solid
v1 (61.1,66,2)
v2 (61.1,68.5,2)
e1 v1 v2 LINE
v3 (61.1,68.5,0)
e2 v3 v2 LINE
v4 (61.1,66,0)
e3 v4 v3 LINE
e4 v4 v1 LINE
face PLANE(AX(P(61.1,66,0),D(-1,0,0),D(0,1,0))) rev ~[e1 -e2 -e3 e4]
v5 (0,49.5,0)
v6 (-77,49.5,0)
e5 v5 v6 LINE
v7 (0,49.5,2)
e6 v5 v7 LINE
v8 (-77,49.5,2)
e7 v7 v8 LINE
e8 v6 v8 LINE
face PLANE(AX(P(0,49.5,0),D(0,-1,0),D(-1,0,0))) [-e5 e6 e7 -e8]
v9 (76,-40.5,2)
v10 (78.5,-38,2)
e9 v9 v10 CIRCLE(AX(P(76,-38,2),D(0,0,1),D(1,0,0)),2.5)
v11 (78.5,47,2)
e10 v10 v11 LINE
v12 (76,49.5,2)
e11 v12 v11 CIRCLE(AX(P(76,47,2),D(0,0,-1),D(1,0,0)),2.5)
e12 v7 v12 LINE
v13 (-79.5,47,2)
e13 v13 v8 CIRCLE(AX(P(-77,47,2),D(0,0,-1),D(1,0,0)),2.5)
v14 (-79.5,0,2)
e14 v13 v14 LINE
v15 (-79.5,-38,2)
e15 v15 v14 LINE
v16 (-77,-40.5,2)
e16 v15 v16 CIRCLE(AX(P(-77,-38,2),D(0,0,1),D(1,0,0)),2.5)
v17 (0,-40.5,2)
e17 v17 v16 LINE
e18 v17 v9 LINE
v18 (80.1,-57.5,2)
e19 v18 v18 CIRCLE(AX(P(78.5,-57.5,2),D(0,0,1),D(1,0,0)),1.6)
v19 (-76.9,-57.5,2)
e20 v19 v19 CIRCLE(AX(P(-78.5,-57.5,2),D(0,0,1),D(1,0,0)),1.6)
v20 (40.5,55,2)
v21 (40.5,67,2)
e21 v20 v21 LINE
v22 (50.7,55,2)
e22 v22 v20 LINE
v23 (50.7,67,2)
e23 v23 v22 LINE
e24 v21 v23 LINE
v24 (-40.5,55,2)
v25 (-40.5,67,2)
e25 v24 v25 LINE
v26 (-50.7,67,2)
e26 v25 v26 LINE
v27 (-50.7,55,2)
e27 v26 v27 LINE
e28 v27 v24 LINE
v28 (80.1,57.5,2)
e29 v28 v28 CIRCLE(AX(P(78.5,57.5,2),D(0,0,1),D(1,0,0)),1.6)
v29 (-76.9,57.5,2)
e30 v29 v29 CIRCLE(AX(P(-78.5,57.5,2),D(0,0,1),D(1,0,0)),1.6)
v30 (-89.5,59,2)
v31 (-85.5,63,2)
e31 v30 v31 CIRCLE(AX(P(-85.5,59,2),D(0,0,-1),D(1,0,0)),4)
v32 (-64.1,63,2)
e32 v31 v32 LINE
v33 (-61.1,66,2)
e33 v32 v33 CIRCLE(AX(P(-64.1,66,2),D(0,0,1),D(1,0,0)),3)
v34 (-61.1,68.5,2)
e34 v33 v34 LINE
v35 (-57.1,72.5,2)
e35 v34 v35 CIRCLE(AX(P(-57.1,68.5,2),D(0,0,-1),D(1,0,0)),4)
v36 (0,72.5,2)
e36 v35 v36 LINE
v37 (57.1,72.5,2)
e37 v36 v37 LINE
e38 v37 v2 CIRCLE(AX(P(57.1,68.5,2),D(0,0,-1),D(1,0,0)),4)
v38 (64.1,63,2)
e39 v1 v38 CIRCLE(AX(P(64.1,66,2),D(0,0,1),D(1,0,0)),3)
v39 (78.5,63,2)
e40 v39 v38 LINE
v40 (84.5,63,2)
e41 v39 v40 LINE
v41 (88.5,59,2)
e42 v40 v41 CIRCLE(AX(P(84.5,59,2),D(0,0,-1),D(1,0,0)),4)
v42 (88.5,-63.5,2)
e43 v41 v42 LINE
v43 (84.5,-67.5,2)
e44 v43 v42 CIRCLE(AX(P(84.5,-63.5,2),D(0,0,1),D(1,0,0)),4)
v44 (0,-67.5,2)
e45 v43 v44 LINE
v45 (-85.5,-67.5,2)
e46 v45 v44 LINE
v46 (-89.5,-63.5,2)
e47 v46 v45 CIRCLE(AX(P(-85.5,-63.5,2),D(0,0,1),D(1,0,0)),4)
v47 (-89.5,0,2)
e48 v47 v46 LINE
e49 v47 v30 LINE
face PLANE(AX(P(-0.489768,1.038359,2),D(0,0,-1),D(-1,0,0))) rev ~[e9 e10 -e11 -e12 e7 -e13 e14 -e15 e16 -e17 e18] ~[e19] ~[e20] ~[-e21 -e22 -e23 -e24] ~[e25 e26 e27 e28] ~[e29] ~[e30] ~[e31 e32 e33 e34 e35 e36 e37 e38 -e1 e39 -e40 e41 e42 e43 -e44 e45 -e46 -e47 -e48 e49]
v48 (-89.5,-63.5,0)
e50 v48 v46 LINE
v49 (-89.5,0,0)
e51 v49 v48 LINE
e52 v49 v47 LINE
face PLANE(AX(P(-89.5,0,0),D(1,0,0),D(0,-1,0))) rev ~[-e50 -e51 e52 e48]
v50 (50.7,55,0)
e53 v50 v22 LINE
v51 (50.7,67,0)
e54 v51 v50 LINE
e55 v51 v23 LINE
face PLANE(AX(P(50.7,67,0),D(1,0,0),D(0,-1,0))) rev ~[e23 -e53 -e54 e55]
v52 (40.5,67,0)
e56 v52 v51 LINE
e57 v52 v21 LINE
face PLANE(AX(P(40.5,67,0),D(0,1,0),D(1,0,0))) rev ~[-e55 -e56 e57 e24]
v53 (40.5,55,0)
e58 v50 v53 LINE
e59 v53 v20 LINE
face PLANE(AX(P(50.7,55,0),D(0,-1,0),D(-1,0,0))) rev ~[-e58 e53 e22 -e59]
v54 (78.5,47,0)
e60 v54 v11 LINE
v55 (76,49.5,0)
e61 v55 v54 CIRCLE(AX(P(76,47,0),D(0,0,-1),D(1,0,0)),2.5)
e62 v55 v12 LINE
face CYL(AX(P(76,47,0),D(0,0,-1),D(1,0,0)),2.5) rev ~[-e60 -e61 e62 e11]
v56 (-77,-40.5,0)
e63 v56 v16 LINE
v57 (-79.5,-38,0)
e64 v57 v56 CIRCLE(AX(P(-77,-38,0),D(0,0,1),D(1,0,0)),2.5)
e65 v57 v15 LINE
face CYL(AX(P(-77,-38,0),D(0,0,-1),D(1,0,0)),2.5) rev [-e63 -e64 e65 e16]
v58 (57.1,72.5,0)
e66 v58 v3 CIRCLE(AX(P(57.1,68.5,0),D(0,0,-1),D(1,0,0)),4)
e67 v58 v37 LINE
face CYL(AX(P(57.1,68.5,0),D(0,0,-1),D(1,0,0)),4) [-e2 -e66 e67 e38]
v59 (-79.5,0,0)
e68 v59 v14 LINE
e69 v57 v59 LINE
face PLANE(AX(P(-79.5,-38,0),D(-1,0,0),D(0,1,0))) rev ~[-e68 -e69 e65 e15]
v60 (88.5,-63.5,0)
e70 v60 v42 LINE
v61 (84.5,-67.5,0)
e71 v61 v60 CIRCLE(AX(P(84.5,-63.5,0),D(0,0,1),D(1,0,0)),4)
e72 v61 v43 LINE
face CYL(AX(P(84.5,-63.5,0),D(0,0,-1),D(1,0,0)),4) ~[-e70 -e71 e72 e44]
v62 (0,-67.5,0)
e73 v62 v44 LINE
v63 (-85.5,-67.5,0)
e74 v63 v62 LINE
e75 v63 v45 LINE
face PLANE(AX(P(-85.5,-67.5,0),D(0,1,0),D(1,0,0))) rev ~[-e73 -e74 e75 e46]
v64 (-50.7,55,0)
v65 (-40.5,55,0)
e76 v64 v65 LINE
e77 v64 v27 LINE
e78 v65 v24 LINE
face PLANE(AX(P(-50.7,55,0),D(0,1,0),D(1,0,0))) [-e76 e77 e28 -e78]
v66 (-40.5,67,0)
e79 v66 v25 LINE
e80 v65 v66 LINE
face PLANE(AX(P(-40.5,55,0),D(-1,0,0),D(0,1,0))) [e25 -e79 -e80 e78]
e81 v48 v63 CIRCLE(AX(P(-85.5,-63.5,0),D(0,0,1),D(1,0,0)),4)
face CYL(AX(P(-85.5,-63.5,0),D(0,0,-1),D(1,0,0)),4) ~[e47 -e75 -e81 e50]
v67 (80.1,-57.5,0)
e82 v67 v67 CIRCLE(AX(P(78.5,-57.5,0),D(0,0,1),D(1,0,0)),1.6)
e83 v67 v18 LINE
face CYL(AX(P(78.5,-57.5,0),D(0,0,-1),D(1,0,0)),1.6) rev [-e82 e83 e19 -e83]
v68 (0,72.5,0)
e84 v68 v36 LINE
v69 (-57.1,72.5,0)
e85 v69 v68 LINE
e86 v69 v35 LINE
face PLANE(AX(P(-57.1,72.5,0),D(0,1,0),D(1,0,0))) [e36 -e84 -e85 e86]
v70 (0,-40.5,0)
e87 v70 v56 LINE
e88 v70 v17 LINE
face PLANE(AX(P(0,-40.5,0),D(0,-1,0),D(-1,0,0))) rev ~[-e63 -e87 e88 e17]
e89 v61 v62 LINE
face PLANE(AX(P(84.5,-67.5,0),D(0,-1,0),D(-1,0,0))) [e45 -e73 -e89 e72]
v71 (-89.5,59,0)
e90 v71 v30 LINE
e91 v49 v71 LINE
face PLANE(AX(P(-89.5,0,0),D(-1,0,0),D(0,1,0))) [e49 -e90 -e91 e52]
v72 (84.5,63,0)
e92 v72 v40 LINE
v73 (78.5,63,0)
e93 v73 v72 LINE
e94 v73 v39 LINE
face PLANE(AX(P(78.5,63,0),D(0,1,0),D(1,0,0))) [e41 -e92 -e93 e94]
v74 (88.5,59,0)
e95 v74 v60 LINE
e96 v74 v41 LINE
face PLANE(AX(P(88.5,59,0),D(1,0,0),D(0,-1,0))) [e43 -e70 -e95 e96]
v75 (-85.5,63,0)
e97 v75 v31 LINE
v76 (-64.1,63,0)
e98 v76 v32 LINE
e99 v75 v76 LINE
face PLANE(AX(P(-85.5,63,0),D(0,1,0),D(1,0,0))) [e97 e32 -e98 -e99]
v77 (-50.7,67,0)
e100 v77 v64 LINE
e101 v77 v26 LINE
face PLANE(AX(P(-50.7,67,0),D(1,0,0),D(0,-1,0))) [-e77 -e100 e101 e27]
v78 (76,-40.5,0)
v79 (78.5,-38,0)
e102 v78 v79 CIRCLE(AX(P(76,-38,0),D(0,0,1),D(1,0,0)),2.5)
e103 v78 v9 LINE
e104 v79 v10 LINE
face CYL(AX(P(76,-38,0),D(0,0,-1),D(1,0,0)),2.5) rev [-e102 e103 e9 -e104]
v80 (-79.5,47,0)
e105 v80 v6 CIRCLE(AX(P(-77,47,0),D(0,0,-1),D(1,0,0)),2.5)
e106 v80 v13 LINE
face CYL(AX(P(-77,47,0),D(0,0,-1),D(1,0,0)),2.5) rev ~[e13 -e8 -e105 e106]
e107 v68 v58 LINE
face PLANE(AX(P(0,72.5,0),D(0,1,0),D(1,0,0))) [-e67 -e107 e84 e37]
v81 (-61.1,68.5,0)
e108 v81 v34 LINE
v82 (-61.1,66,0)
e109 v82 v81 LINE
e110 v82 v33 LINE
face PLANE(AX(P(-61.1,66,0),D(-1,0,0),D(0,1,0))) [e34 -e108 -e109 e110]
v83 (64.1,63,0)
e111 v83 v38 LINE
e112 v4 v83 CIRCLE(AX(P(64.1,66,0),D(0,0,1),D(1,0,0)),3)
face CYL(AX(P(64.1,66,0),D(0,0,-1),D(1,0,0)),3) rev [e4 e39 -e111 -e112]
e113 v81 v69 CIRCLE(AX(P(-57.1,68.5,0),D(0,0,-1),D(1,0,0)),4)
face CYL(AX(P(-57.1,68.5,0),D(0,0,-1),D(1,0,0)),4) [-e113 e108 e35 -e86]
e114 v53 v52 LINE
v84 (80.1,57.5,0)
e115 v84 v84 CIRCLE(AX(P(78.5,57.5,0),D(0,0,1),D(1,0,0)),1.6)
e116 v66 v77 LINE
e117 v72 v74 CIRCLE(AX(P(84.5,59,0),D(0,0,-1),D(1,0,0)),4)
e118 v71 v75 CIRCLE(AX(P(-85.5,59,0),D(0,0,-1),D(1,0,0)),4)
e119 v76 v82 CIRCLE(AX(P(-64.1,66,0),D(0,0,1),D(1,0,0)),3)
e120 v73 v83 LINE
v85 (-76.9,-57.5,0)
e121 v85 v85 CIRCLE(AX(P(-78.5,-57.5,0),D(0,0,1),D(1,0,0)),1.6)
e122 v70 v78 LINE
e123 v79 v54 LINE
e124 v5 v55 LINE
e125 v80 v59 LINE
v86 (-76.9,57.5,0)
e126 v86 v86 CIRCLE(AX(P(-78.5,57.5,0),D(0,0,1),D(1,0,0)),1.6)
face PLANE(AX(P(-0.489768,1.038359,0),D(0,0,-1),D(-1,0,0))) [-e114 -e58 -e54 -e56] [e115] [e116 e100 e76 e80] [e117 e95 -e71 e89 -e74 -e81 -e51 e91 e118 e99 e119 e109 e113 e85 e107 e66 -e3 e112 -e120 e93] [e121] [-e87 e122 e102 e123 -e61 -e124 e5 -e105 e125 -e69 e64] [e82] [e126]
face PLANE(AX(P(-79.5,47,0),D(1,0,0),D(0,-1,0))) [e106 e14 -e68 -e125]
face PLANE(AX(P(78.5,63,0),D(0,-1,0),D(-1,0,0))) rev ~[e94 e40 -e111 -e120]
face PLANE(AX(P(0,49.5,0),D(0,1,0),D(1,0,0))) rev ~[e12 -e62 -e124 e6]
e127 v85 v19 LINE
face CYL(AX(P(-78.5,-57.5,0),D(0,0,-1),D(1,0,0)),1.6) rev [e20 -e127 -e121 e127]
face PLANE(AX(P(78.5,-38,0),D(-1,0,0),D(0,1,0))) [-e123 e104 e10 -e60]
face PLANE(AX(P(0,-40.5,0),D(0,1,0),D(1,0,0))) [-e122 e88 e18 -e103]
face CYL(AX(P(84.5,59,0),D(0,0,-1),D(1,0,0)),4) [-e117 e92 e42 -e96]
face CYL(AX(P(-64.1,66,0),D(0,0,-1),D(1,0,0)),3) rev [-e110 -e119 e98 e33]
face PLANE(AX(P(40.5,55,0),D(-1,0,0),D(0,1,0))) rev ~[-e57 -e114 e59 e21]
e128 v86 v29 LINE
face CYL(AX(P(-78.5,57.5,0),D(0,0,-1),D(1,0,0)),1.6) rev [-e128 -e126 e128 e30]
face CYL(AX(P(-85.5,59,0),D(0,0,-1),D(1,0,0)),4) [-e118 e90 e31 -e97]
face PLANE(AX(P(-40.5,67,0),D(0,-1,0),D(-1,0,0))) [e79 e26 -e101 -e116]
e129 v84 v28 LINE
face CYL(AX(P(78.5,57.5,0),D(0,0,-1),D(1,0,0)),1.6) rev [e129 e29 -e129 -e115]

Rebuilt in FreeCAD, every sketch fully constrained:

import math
import FreeCAD as App
import Part
import Sketcher


def add_polygon(sketch, points):
    """Adds a closed chain of lines whose ends are joined by coincident constraints."""
    first, n = sketch.GeometryCount, len(points)
    for a, b in zip(points, points[1:] + points[:1]):
        sketch.addGeometry(Part.LineSegment(App.Vector(*a, 0), App.Vector(*b, 0)), False)
    for i in range(n):
        sketch.addConstraint(Sketcher.Constraint("Coincident", first + i, 2, first + (i + 1) % n, 1))

doc = App.newDocument("Part")
body = doc.addObject("PartDesign::Body", "Body")

# Sketch on XY plane
sketch1 = body.newObject("Sketcher::SketchObject", "Sketch")
sketch1.AttachmentSupport = (doc.getObject("XY_Plane"), [""])
sketch1.MapMode = "FlatFace"
sketch1.addGeometry(Part.LineSegment(App.Vector(88.5, -63.5, 0), App.Vector(88.5, 59, 0)), False)  # 0
sketch1.addGeometry(Part.ArcOfCircle(Part.Circle(App.Vector(84.5, 59, 0), App.Vector(0, 0, 1), 4), math.radians(0), math.radians(90)), False)  # 1
sketch1.addGeometry(Part.LineSegment(App.Vector(84.5, 63, 0), App.Vector(64.1, 63, 0)), False)  # 2
sketch1.addGeometry(Part.ArcOfCircle(Part.Circle(App.Vector(64.1, 66, 0), App.Vector(0, 0, 1), 3), math.radians(180), math.radians(270)), False)  # 3
sketch1.addGeometry(Part.LineSegment(App.Vector(61.1, 66, 0), App.Vector(61.1, 68.5, 0)), False)  # 4
sketch1.addGeometry(Part.ArcOfCircle(Part.Circle(App.Vector(57.1, 68.5, 0), App.Vector(0, 0, 1), 4), math.radians(0), math.radians(90)), False)  # 5
sketch1.addGeometry(Part.LineSegment(App.Vector(57.1, 72.5, 0), App.Vector(-57.1, 72.5, 0)), False)  # 6
sketch1.addGeometry(Part.ArcOfCircle(Part.Circle(App.Vector(-57.1, 68.5, 0), App.Vector(0, 0, 1), 4), math.radians(90), math.radians(180)), False)  # 7
sketch1.addGeometry(Part.LineSegment(App.Vector(-61.1, 68.5, 0), App.Vector(-61.1, 66, 0)), False)  # 8
sketch1.addGeometry(Part.ArcOfCircle(Part.Circle(App.Vector(-64.1, 66, 0), App.Vector(0, 0, 1), 3), math.radians(-90), math.radians(0)), False)  # 9
sketch1.addGeometry(Part.LineSegment(App.Vector(-64.1, 63, 0), App.Vector(-85.5, 63, 0)), False)  # 10
sketch1.addGeometry(Part.ArcOfCircle(Part.Circle(App.Vector(-85.5, 59, 0), App.Vector(0, 0, 1), 4), math.radians(90), math.radians(180)), False)  # 11
sketch1.addGeometry(Part.LineSegment(App.Vector(-89.5, 59, 0), App.Vector(-89.5, -63.5, 0)), False)  # 12
sketch1.addGeometry(Part.ArcOfCircle(Part.Circle(App.Vector(-85.5, -63.5, 0), App.Vector(0, 0, 1), 4), math.radians(180), math.radians(270)), False)  # 13
sketch1.addGeometry(Part.LineSegment(App.Vector(-85.5, -67.5, 0), App.Vector(84.5, -67.5, 0)), False)  # 14
sketch1.addGeometry(Part.ArcOfCircle(Part.Circle(App.Vector(84.5, -63.5, 0), App.Vector(0, 0, 1), 4), math.radians(-90), math.radians(0)), False)  # 15
sketch1.addGeometry(Part.Circle(App.Vector(-78.5, -57.5, 0), App.Vector(0, 0, 1), 1.6), False)  # 16
sketch1.addGeometry(Part.Circle(App.Vector(78.5, -57.5, 0), App.Vector(0, 0, 1), 1.6), False)  # 17
sketch1.addGeometry(Part.Circle(App.Vector(-78.5, 57.5, 0), App.Vector(0, 0, 1), 1.6), False)  # 18
add_polygon(sketch1, [(-50.7, 55), (-50.7, 67), (-40.5, 67), (-40.5, 55)])  # lines 19-22
sketch1.addGeometry(Part.LineSegment(App.Vector(-77, 49.5, 0), App.Vector(76, 49.5, 0)), False)  # 23
sketch1.addGeometry(Part.ArcOfCircle(Part.Circle(App.Vector(76, 47, 0), App.Vector(0, 0, 1), 2.5), math.radians(0), math.radians(90)), False)  # 24
sketch1.addGeometry(Part.LineSegment(App.Vector(78.5, 47, 0), App.Vector(78.5, -38, 0)), False)  # 25
sketch1.addGeometry(Part.ArcOfCircle(Part.Circle(App.Vector(76, -38, 0), App.Vector(0, 0, 1), 2.5), math.radians(-90), math.radians(0)), False)  # 26
sketch1.addGeometry(Part.LineSegment(App.Vector(76, -40.5, 0), App.Vector(-77, -40.5, 0)), False)  # 27
sketch1.addGeometry(Part.ArcOfCircle(Part.Circle(App.Vector(-77, -38, 0), App.Vector(0, 0, 1), 2.5), math.radians(180), math.radians(270)), False)  # 28
sketch1.addGeometry(Part.LineSegment(App.Vector(-79.5, -38, 0), App.Vector(-79.5, 47, 0)), False)  # 29
sketch1.addGeometry(Part.ArcOfCircle(Part.Circle(App.Vector(-77, 47, 0), App.Vector(0, 0, 1), 2.5), math.radians(90), math.radians(180)), False)  # 30
add_polygon(sketch1, [(50.7, 67), (50.7, 55), (40.5, 55), (40.5, 67)])  # lines 31-34
sketch1.addGeometry(Part.Circle(App.Vector(78.5, 57.5, 0), App.Vector(0, 0, 1), 1.6), False)  # 35
sketch1.addConstraint([
    Sketcher.Constraint("Tangent", 0, 2, 1, 1),
    Sketcher.Constraint("Tangent", 1, 2, 2, 1),
    Sketcher.Constraint("Tangent", 2, 2, 3, 2),
    Sketcher.Constraint("Tangent", 3, 1, 4, 1),
    Sketcher.Constraint("Tangent", 4, 2, 5, 1),
    Sketcher.Constraint("Tangent", 5, 2, 6, 1),
    Sketcher.Constraint("Tangent", 6, 2, 7, 1),
    Sketcher.Constraint("Tangent", 7, 2, 8, 1),
    Sketcher.Constraint("Tangent", 8, 2, 9, 2),
    Sketcher.Constraint("Tangent", 9, 1, 10, 1),
    Sketcher.Constraint("Tangent", 10, 2, 11, 1),
    Sketcher.Constraint("Tangent", 11, 2, 12, 1),
    Sketcher.Constraint("Tangent", 12, 2, 13, 1),
    Sketcher.Constraint("Tangent", 13, 2, 14, 1),
    Sketcher.Constraint("Tangent", 14, 2, 15, 1),
    Sketcher.Constraint("Tangent", 15, 2, 0, 1),
    Sketcher.Constraint("Tangent", 23, 2, 24, 2),
    Sketcher.Constraint("Tangent", 24, 1, 25, 1),
    Sketcher.Constraint("Tangent", 25, 2, 26, 2),
    Sketcher.Constraint("Tangent", 26, 1, 27, 1),
    Sketcher.Constraint("Tangent", 27, 2, 28, 2),
    Sketcher.Constraint("Tangent", 28, 1, 29, 1),
    Sketcher.Constraint("Tangent", 29, 2, 30, 2),
    Sketcher.Constraint("Tangent", 30, 1, 23, 1),
    Sketcher.Constraint("Vertical", 0),
    Sketcher.Constraint("Horizontal", 2),
    Sketcher.Constraint("Vertical", 4),
    Sketcher.Constraint("Horizontal", 6),
    Sketcher.Constraint("Vertical", 8),
    Sketcher.Constraint("Horizontal", 10),
    Sketcher.Constraint("Vertical", 12),
    Sketcher.Constraint("Horizontal", 14),
    Sketcher.Constraint("Vertical", 19),
    Sketcher.Constraint("Horizontal", 20),
    Sketcher.Constraint("Vertical", 21),
    Sketcher.Constraint("Horizontal", 22),
    Sketcher.Constraint("Horizontal", 23),
    Sketcher.Constraint("Vertical", 25),
    Sketcher.Constraint("Horizontal", 27),
    Sketcher.Constraint("Vertical", 29),
    Sketcher.Constraint("Vertical", 31),
    Sketcher.Constraint("Horizontal", 32),
    Sketcher.Constraint("Vertical", 33),
    Sketcher.Constraint("Horizontal", 34),
    Sketcher.Constraint("Equal", 1, 5),
    Sketcher.Constraint("Equal", 5, 7),
    Sketcher.Constraint("Equal", 3, 9),
    Sketcher.Constraint("Equal", 7, 11),
    Sketcher.Constraint("Equal", 11, 13),
    Sketcher.Constraint("Equal", 13, 15),
    Sketcher.Constraint("Equal", 16, 17),
    Sketcher.Constraint("Equal", 17, 18),
    Sketcher.Constraint("Equal", 24, 26),
    Sketcher.Constraint("Equal", 26, 28),
    Sketcher.Constraint("Equal", 28, 30),
    Sketcher.Constraint("Equal", 18, 35),
    Sketcher.Constraint("Symmetric", 17, 3, 18, 3, -1, 1),
    Sketcher.Constraint("Symmetric", 16, 3, 35, 3, -1, 1),
    Sketcher.Constraint("Symmetric", 3, 3, 9, 3, -2),
    Sketcher.Constraint("Symmetric", 16, 3, 17, 3, -2),
    Sketcher.Constraint("Symmetric", 22, 2, 31, 2, -2),
    Sketcher.Constraint("Symmetric", 20, 2, 33, 2, -2),
    Sketcher.Constraint("Vertical", 35, 3, 24, 1),
    Sketcher.Constraint("Radius", 1, 4.0),
    Sketcher.Constraint("Radius", 3, 3.0),
    Sketcher.Constraint("Diameter", 16, 3.2),
    Sketcher.Constraint("Radius", 24, 2.5),
    Sketcher.Constraint("DistanceX", 14, 1, 14, 2, 170.0),
    Sketcher.Constraint("DistanceX", 23, 1, 23, 2, 153.0),
    Sketcher.Constraint("DistanceY", 19, 1, 19, 2, 12.0),
    Sketcher.Constraint("DistanceY", 25, 2, 25, 1, 85.0),
    Sketcher.Constraint("DistanceX", 2, 2, 2, 1, 20.4),
    Sketcher.Constraint("DistanceX", 6, 2, 6, 1, 114.2),
    Sketcher.Constraint("DistanceX", 20, 1, 20, 2, 10.2),
    Sketcher.Constraint("DistanceY", 0, 1, 0, 2, 122.5),
    Sketcher.Constraint("DistanceY", 4, 1, 4, 2, 2.5),
    Sketcher.Constraint("DistanceY", -1, 1, 1, 3, 59.0),
    Sketcher.Constraint("DistanceX", -1, 1, 24, 3, 76.0),
    Sketcher.Constraint("DistanceY", -1, 1, 24, 3, 47.0),
    Sketcher.Constraint("DistanceY", -1, 1, 19, 2, 67.0),
    Sketcher.Constraint("DistanceY", 13, 3, 16, 3, 6.0),
    Sketcher.Constraint("DistanceX", 19, 2, -1, 1, 50.7),
])
pad1 = body.newObject("PartDesign::Pad", "Pad")
pad1.Profile = sketch1
pad1.Length = 2

doc.recompute()
